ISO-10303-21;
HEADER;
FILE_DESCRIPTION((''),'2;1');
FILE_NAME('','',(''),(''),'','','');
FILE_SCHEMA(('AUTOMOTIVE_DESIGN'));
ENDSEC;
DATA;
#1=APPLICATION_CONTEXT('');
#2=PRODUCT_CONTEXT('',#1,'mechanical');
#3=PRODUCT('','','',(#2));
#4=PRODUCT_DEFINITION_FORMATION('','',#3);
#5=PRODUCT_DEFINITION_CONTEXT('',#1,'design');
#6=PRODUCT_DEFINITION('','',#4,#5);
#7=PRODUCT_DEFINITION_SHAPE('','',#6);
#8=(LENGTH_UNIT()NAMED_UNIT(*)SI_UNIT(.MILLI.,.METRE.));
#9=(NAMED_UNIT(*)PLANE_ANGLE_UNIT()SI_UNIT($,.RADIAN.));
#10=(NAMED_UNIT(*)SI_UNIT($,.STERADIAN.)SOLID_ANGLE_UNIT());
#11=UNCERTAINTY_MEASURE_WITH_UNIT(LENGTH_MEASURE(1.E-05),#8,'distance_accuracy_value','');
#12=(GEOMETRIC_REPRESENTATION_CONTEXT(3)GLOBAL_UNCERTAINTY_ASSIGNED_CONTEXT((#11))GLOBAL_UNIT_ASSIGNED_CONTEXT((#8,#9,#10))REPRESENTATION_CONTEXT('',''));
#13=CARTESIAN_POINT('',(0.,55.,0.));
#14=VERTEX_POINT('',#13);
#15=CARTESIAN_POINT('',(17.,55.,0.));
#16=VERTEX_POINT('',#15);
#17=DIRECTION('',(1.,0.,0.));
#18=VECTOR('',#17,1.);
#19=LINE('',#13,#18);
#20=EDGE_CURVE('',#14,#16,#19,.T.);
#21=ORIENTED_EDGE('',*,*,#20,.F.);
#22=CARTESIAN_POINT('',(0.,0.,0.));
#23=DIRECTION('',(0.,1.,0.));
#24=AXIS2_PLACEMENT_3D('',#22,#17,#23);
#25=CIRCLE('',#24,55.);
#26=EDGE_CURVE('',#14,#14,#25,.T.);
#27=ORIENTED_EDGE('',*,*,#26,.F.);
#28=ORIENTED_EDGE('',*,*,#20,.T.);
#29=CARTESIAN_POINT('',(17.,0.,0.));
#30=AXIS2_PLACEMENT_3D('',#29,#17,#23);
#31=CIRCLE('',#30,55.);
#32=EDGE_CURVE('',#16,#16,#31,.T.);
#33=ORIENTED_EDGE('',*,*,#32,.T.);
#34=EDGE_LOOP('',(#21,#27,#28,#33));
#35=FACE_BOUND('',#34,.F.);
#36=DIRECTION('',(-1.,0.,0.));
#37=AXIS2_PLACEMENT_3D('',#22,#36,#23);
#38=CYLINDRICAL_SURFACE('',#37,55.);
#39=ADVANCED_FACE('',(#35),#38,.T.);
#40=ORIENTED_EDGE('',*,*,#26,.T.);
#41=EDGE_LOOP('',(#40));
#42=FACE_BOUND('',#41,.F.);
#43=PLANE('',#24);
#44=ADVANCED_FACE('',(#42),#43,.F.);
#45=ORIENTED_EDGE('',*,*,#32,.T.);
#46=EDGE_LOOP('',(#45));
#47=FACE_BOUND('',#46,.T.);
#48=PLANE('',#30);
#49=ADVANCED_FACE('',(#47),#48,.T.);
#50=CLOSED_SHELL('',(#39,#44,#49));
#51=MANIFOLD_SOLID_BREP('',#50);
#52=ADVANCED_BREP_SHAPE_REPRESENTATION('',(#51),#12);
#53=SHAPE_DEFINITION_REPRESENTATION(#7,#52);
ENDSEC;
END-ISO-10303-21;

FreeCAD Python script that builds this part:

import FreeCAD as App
import Part
import Sketcher

doc = App.newDocument("Part")
body = doc.addObject("PartDesign::Body", "Body")

# Sketch on YZ plane
sketch1 = doc.addObject("Sketcher::SketchObject", "Sketch")
body.addObject(sketch1)
sketch1.AttachmentSupport = (doc.YZ_Plane, [""])
sketch1.MapMode = "FlatFace"
sketch1.addGeometry(Part.Circle(App.Vector(0, 0, 0), App.Vector(0, 0, 1), 55), False)
sketch1.addConstraint([
    Sketcher.Constraint("Coincident", 0, 3, -1, 1),
    Sketcher.Constraint("Diameter", 0, 110.0),
])
pad1 = doc.addObject("PartDesign::Pad", "Pad")
body.addObject(pad1)
pad1.Profile = sketch1
pad1.Length = 17

doc.recompute()
